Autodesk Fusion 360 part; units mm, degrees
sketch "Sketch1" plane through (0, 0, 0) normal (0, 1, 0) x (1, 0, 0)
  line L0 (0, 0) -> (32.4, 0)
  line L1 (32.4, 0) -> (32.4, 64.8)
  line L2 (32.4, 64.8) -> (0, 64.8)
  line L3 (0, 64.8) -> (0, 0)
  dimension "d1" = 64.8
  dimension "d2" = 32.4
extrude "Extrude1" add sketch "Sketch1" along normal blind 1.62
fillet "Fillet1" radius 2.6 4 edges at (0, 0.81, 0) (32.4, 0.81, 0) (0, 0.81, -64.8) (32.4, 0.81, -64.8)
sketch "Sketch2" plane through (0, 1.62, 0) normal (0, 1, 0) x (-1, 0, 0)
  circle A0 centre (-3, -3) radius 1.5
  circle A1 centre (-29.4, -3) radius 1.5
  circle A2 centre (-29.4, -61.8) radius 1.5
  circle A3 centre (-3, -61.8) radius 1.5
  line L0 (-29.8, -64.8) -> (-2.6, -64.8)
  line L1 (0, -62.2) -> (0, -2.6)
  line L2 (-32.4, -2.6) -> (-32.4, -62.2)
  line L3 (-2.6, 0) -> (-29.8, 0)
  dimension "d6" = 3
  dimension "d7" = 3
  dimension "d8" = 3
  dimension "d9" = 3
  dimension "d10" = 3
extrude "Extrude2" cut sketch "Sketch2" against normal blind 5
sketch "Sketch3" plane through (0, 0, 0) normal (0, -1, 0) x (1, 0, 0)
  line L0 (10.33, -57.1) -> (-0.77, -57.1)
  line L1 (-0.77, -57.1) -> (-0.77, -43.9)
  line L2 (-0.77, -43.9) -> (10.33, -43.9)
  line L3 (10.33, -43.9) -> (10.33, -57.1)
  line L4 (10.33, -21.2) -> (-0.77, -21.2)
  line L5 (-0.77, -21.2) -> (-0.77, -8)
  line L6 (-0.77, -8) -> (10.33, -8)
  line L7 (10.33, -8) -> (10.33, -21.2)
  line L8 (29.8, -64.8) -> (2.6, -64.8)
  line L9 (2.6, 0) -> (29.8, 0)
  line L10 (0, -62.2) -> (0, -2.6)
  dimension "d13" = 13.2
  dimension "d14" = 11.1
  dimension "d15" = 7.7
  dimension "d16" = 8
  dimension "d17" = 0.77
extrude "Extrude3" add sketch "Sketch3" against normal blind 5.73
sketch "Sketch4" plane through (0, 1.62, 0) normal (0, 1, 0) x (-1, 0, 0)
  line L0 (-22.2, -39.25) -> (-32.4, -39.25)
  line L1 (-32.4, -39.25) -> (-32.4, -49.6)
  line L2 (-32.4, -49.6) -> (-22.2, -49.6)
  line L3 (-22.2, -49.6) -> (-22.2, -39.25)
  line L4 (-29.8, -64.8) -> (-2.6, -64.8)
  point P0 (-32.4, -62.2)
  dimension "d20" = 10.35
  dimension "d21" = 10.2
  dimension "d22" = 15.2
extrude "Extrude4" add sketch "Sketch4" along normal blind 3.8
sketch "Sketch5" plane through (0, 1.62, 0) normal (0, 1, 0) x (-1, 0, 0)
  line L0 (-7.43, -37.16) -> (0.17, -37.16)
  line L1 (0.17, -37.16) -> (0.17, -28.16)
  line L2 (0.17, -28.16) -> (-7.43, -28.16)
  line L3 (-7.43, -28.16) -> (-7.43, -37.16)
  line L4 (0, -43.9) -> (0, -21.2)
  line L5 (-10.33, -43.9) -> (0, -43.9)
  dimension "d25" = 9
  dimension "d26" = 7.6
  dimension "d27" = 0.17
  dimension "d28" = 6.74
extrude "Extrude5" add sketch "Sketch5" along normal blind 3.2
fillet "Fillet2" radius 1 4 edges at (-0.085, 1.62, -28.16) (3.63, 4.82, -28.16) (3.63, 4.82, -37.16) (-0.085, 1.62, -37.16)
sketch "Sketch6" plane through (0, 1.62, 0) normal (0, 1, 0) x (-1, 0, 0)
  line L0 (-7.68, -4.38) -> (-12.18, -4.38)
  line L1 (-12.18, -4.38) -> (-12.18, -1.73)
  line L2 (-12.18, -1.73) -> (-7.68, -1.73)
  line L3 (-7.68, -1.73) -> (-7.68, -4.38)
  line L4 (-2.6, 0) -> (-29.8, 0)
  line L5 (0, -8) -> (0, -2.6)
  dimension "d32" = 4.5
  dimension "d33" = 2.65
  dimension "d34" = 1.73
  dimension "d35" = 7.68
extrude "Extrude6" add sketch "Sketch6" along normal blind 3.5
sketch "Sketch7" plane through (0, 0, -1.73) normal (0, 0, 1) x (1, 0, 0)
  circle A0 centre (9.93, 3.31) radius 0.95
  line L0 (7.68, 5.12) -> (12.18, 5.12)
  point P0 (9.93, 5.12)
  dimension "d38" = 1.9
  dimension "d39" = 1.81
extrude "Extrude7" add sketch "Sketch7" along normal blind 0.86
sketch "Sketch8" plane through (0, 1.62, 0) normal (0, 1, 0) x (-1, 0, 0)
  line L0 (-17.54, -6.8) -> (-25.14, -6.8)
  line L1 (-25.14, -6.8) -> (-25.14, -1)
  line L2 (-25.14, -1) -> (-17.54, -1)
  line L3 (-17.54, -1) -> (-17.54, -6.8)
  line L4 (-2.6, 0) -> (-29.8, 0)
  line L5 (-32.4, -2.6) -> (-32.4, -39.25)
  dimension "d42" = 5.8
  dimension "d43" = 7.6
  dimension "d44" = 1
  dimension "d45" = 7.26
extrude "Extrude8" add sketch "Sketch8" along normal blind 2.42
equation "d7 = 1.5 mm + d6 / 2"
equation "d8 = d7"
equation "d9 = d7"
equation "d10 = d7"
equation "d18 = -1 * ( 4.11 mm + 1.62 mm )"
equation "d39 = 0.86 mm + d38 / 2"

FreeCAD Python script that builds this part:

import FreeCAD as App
import Part
import Sketcher

V = App.Vector
Q = App.Units.Quantity


def edges_at(feature, points):
    """Names of the edges that pass closest to the given points."""
    edges = feature.Shape.Edges
    near = lambda p: min(range(len(edges)), key=lambda i: edges[i].distToShape(Part.Vertex(*p))[0])
    return sorted({f"Edge{near(p) + 1}" for p in points})


def add_polygon(sketch, points):
    """Adds a closed chain of lines whose ends are joined by coincident constraints."""
    first, n = sketch.GeometryCount, len(points)
    for a, b in zip(points, points[1:] + points[:1]):
        sketch.addGeometry(Part.LineSegment(App.Vector(*a, 0), App.Vector(*b, 0)), False)
    for i in range(n):
        sketch.addConstraint(Sketcher.Constraint("Coincident", first + i, 2, first + (i + 1) % n, 1))

doc = App.newDocument("Part")
body = doc.addObject("PartDesign::Body", "Body")

# Sketch on XZ plane
sketch1 = body.newObject("Sketcher::SketchObject", "Sketch")
sketch1.AttachmentSupport = (doc.getObject("XZ_Plane"), [""])
sketch1.MapMode = "FlatFace"
add_polygon(sketch1, [(0, -65), (0, 0), (32, 0), (32, -65)])  # lines 0-3
sketch1.addConstraint(Sketcher.Constraint("Vertical", 0))
sketch1.addConstraint(Sketcher.Constraint("Horizontal", 1))
sketch1.addConstraint(Sketcher.Constraint("Vertical", 2))
sketch1.addConstraint(Sketcher.Constraint("Horizontal", 3))
sketch1.addConstraint(Sketcher.Constraint("Coincident", 0, 2, -1, 1))
sketch1.addConstraint(Sketcher.Constraint("DistanceX", 1, 1, 1, 2, Q("32.4 mm")))
sketch1.addConstraint(Sketcher.Constraint("DistanceY", 0, 1, 0, 2, Q("64.8 mm")))
pad1 = body.newObject("PartDesign::Pad", "Pad")
pad1.Profile = sketch1
pad1.Length = 1.62
pad1.Reversed = True
doc.recompute()

fillet = body.newObject("PartDesign::Fillet", "Fillet")
fillet.Base = (pad1, edges_at(pad1, [
    (0, 0.81, 0),
    (32.4, 0.81, 0),
    (0, 0.81, -64.8),
    (32.4, 0.81, -64.8),
]))
fillet.Radius = 2.6

# Sketch on XZ plane
sketch2 = body.newObject("Sketcher::SketchObject", "Sketch001")
sketch2.AttachmentSupport = (doc.getObject("XZ_Plane"), [""])
sketch2.MapMode = "FlatFace"
sketch2.AttachmentOffset = App.Placement(V(0, 0, -1.62), App.Rotation())
sketch2.addGeometry(Part.Circle(V(3, -3, 0), V(0, 0, 1), 1.5), False)
sketch2.addGeometry(Part.Circle(V(29.4, -3, 0), V(0, 0, 1), 1.5), False)
sketch2.addGeometry(Part.Circle(V(29.4, -61.8, 0), V(0, 0, 1), 1.5), False)
sketch2.addGeometry(Part.Circle(V(3, -61.8, 0), V(0, 0, 1), 1.5), False)
sketch2.addConstraint(Sketcher.Constraint("Equal", 0, 1))
sketch2.addConstraint(Sketcher.Constraint("Equal", 1, 2))
sketch2.addConstraint(Sketcher.Constraint("Equal", 2, 3))
sketch2.addConstraint(Sketcher.Constraint("Horizontal", 0, 3, 1, 3))
sketch2.addConstraint(Sketcher.Constraint("Horizontal", 2, 3, 3, 3))
sketch2.addConstraint(Sketcher.Constraint("Vertical", 1, 3, 2, 3))
sketch2.addConstraint(Sketcher.Constraint("Vertical", 0, 3, 3, 3))
sketch2.addConstraint(Sketcher.Constraint("Diameter", 0, Q("3 mm")))
sketch2.addConstraint(Sketcher.Constraint("DistanceX", -1, 1, 0, 3, Q("3 mm")))
sketch2.addConstraint(Sketcher.Constraint("DistanceY", 0, 3, -1, 1, Q("3 mm")))
sketch2.addConstraint(Sketcher.Constraint("DistanceX", -1, 1, 1, 3, Q("29.4 mm")))
sketch2.addConstraint(Sketcher.Constraint("DistanceY", 2, 3, -1, 1, Q("61.8 mm")))
pocket1 = body.newObject("PartDesign::Pocket", "Pocket")
pocket1.Profile = sketch2
pocket1.Length = 5
pocket1.Reversed = True

# Sketch on XZ plane
sketch3 = body.newObject("Sketcher::SketchObject", "Sketch002")
sketch3.AttachmentSupport = (doc.getObject("XZ_Plane"), [""])
sketch3.MapMode = "FlatFace"
add_polygon(sketch3, [(-1, -21), (10, -21), (10, -8), (-1, -8)])  # lines 0-3
add_polygon(sketch3, [(10, -57), (10, -44), (-1, -44), (-1, -57)])  # lines 4-7
sketch3.addConstraint(Sketcher.Constraint("Horizontal", 0))
sketch3.addConstraint(Sketcher.Constraint("Vertical", 1))
sketch3.addConstraint(Sketcher.Constraint("Horizontal", 2))
sketch3.addConstraint(Sketcher.Constraint("Vertical", 3))
sketch3.addConstraint(Sketcher.Constraint("Vertical", 4))
sketch3.addConstraint(Sketcher.Constraint("Horizontal", 5))
sketch3.addConstraint(Sketcher.Constraint("Vertical", 6))
sketch3.addConstraint(Sketcher.Constraint("Horizontal", 7))
sketch3.addConstraint(Sketcher.Constraint("Vertical", 1, 2, 4, 2))
sketch3.addConstraint(Sketcher.Constraint("Vertical", 3, 2, 5, 2))
sketch3.addConstraint(Sketcher.Constraint("Equal", 3, 4))
sketch3.addConstraint(Sketcher.Constraint("DistanceX", 0, 1, 0, 2, Q("11.1 mm")))
sketch3.addConstraint(Sketcher.Constraint("DistanceY", 1, 1, 1, 2, Q("13.2 mm")))
sketch3.addConstraint(Sketcher.Constraint("DistanceY", 1, 2, -1, 1, Q("8 mm")))
sketch3.addConstraint(Sketcher.Constraint("DistanceX", 2, 2, -1, 1, Q("0.77 mm")))
sketch3.addConstraint(Sketcher.Constraint("DistanceY", 4, 2, -1, 1, Q("43.9 mm")))
pad2 = body.newObject("PartDesign::Pad", "Pad001")
pad2.Profile = sketch3
pad2.Length = 5.73
pad2.Reversed = True

# Sketch on XZ plane
sketch4 = body.newObject("Sketcher::SketchObject", "Sketch003")
sketch4.AttachmentSupport = (doc.getObject("XZ_Plane"), [""])
sketch4.MapMode = "FlatFace"
sketch4.AttachmentOffset = App.Placement(V(0, 0, -1.62), App.Rotation())
add_polygon(sketch4, [(22, -50), (22, -39), (32, -39), (32, -50)])  # lines 0-3
sketch4.addConstraint(Sketcher.Constraint("Vertical", 0))
sketch4.addConstraint(Sketcher.Constraint("Horizontal", 1))
sketch4.addConstraint(Sketcher.Constraint("Vertical", 2))
sketch4.addConstraint(Sketcher.Constraint("Horizontal", 3))
sketch4.addConstraint(Sketcher.Constraint("DistanceX", 1, 1, 1, 2, Q("10.2 mm")))
sketch4.addConstraint(Sketcher.Constraint("DistanceY", 0, 1, 0, 2, Q("10.35 mm")))
sketch4.addConstraint(Sketcher.Constraint("DistanceX", -1, 1, 0, 2, Q("22.2 mm")))
sketch4.addConstraint(Sketcher.Constraint("DistanceY", 2, 2, -1, 1, Q("49.6 mm")))
pad3 = body.newObject("PartDesign::Pad", "Pad002")
pad3.Profile = sketch4
pad3.Length = 3.8
pad3.Reversed = True

# Sketch on XZ plane
sketch5 = body.newObject("Sketcher::SketchObject", "Sketch004")
sketch5.AttachmentSupport = (doc.getObject("XZ_Plane"), [""])
sketch5.MapMode = "FlatFace"
sketch5.AttachmentOffset = App.Placement(V(0, 0, -1.62), App.Rotation())
add_polygon(sketch5, [(7, -28), (7, -37), (0, -37), (0, -28)])  # lines 0-3
sketch5.addConstraint(Sketcher.Constraint("Vertical", 0))
sketch5.addConstraint(Sketcher.Constraint("Horizontal", 1))
sketch5.addConstraint(Sketcher.Constraint("Vertical", 2))
sketch5.addConstraint(Sketcher.Constraint("Horizontal", 3))
sketch5.addConstraint(Sketcher.Constraint("DistanceY", 0, 2, 0, 1, Q("9 mm")))
sketch5.addConstraint(Sketcher.Constraint("DistanceX", 1, 2, 1, 1, Q("7.6 mm")))
sketch5.addConstraint(Sketcher.Constraint("DistanceX", 1, 2, -1, 1, Q("0.17 mm")))
sketch5.addConstraint(Sketcher.Constraint("DistanceY", 0, 2, -1, 1, Q("37.16 mm")))
pad4 = body.newObject("PartDesign::Pad", "Pad003")
pad4.Profile = sketch5
pad4.Length = 3.2
pad4.Reversed = True
doc.recompute()

fillet2 = body.newObject("PartDesign::Fillet", "Fillet001")
fillet2.Base = (pad4, edges_at(pad4, [
    (-0.085, 1.62, -28.16),
    (3.63, 4.82, -28.16),
    (3.63, 4.82, -37.16),
    (-0.085, 1.62, -37.16),
]))
fillet2.Radius = 1

# Sketch on XZ plane
sketch6 = body.newObject("Sketcher::SketchObject", "Sketch005")
sketch6.AttachmentSupport = (doc.getObject("XZ_Plane"), [""])
sketch6.MapMode = "FlatFace"
sketch6.AttachmentOffset = App.Placement(V(0, 0, -1.62), App.Rotation())
add_polygon(sketch6, [(12.2, -4.4), (7.7, -4.4), (7.7, -1.7), (12.2, -1.7)])  # lines 0-3
sketch6.addConstraint(Sketcher.Constraint("Horizontal", 0))
sketch6.addConstraint(Sketcher.Constraint("Vertical", 1))
sketch6.addConstraint(Sketcher.Constraint("Horizontal", 2))
sketch6.addConstraint(Sketcher.Constraint("Vertical", 3))
sketch6.addConstraint(Sketcher.Constraint("DistanceX", 0, 2, 0, 1, Q("4.5 mm")))
sketch6.addConstraint(Sketcher.Constraint("DistanceY", 1, 1, 1, 2, Q("2.65 mm")))
sketch6.addConstraint(Sketcher.Constraint("DistanceX", -1, 1, 0, 2, Q("7.68 mm")))
sketch6.addConstraint(Sketcher.Constraint("DistanceY", 1, 2, -1, 1, Q("1.73 mm")))
pad5 = body.newObject("PartDesign::Pad", "Pad004")
pad5.Profile = sketch6
pad5.Length = 3.5
pad5.Reversed = True

# Sketch on XY plane
sketch7 = body.newObject("Sketcher::SketchObject", "Sketch006")
sketch7.AttachmentSupport = (doc.getObject("XY_Plane"), [""])
sketch7.MapMode = "FlatFace"
sketch7.AttachmentOffset = App.Placement(V(0, 0, -1.73), App.Rotation())
sketch7.addGeometry(Part.Circle(V(9.9, 3.3, 0), V(0, 0, 1), 0.9), False)
sketch7.addConstraint(Sketcher.Constraint("Diameter", 0, Q("1.9 mm")))
sketch7.addConstraint(Sketcher.Constraint("DistanceX", -1, 1, 0, 3, Q("9.93 mm")))
sketch7.addConstraint(Sketcher.Constraint("DistanceY", -1, 1, 0, 3, Q("3.31 mm")))
pad6 = body.newObject("PartDesign::Pad", "Pad005")
pad6.Profile = sketch7
pad6.Length = 0.86

# Sketch on XZ plane
sketch8 = body.newObject("Sketcher::SketchObject", "Sketch007")
sketch8.AttachmentSupport = (doc.getObject("XZ_Plane"), [""])
sketch8.MapMode = "FlatFace"
sketch8.AttachmentOffset = App.Placement(V(0, 0, -1.62), App.Rotation())
add_polygon(sketch8, [(25, -7), (18, -7), (18, -1), (25, -1)])  # lines 0-3
sketch8.addConstraint(Sketcher.Constraint("Horizontal", 0))
sketch8.addConstraint(Sketcher.Constraint("Vertical", 1))
sketch8.addConstraint(Sketcher.Constraint("Horizontal", 2))
sketch8.addConstraint(Sketcher.Constraint("Vertical", 3))
sketch8.addConstraint(Sketcher.Constraint("DistanceX", 0, 2, 0, 1, Q("7.6 mm")))
sketch8.addConstraint(Sketcher.Constraint("DistanceY", 1, 1, 1, 2, Q("5.8 mm")))
sketch8.addConstraint(Sketcher.Constraint("DistanceY", 1, 2, -1, 1, Q("1 mm")))
sketch8.addConstraint(Sketcher.Constraint("DistanceX", -1, 1, 0, 2, Q("17.54 mm")))
pad7 = body.newObject("PartDesign::Pad", "Pad006")
pad7.Profile = sketch8
pad7.Length = 2.42
pad7.Reversed = True

doc.recompute()
